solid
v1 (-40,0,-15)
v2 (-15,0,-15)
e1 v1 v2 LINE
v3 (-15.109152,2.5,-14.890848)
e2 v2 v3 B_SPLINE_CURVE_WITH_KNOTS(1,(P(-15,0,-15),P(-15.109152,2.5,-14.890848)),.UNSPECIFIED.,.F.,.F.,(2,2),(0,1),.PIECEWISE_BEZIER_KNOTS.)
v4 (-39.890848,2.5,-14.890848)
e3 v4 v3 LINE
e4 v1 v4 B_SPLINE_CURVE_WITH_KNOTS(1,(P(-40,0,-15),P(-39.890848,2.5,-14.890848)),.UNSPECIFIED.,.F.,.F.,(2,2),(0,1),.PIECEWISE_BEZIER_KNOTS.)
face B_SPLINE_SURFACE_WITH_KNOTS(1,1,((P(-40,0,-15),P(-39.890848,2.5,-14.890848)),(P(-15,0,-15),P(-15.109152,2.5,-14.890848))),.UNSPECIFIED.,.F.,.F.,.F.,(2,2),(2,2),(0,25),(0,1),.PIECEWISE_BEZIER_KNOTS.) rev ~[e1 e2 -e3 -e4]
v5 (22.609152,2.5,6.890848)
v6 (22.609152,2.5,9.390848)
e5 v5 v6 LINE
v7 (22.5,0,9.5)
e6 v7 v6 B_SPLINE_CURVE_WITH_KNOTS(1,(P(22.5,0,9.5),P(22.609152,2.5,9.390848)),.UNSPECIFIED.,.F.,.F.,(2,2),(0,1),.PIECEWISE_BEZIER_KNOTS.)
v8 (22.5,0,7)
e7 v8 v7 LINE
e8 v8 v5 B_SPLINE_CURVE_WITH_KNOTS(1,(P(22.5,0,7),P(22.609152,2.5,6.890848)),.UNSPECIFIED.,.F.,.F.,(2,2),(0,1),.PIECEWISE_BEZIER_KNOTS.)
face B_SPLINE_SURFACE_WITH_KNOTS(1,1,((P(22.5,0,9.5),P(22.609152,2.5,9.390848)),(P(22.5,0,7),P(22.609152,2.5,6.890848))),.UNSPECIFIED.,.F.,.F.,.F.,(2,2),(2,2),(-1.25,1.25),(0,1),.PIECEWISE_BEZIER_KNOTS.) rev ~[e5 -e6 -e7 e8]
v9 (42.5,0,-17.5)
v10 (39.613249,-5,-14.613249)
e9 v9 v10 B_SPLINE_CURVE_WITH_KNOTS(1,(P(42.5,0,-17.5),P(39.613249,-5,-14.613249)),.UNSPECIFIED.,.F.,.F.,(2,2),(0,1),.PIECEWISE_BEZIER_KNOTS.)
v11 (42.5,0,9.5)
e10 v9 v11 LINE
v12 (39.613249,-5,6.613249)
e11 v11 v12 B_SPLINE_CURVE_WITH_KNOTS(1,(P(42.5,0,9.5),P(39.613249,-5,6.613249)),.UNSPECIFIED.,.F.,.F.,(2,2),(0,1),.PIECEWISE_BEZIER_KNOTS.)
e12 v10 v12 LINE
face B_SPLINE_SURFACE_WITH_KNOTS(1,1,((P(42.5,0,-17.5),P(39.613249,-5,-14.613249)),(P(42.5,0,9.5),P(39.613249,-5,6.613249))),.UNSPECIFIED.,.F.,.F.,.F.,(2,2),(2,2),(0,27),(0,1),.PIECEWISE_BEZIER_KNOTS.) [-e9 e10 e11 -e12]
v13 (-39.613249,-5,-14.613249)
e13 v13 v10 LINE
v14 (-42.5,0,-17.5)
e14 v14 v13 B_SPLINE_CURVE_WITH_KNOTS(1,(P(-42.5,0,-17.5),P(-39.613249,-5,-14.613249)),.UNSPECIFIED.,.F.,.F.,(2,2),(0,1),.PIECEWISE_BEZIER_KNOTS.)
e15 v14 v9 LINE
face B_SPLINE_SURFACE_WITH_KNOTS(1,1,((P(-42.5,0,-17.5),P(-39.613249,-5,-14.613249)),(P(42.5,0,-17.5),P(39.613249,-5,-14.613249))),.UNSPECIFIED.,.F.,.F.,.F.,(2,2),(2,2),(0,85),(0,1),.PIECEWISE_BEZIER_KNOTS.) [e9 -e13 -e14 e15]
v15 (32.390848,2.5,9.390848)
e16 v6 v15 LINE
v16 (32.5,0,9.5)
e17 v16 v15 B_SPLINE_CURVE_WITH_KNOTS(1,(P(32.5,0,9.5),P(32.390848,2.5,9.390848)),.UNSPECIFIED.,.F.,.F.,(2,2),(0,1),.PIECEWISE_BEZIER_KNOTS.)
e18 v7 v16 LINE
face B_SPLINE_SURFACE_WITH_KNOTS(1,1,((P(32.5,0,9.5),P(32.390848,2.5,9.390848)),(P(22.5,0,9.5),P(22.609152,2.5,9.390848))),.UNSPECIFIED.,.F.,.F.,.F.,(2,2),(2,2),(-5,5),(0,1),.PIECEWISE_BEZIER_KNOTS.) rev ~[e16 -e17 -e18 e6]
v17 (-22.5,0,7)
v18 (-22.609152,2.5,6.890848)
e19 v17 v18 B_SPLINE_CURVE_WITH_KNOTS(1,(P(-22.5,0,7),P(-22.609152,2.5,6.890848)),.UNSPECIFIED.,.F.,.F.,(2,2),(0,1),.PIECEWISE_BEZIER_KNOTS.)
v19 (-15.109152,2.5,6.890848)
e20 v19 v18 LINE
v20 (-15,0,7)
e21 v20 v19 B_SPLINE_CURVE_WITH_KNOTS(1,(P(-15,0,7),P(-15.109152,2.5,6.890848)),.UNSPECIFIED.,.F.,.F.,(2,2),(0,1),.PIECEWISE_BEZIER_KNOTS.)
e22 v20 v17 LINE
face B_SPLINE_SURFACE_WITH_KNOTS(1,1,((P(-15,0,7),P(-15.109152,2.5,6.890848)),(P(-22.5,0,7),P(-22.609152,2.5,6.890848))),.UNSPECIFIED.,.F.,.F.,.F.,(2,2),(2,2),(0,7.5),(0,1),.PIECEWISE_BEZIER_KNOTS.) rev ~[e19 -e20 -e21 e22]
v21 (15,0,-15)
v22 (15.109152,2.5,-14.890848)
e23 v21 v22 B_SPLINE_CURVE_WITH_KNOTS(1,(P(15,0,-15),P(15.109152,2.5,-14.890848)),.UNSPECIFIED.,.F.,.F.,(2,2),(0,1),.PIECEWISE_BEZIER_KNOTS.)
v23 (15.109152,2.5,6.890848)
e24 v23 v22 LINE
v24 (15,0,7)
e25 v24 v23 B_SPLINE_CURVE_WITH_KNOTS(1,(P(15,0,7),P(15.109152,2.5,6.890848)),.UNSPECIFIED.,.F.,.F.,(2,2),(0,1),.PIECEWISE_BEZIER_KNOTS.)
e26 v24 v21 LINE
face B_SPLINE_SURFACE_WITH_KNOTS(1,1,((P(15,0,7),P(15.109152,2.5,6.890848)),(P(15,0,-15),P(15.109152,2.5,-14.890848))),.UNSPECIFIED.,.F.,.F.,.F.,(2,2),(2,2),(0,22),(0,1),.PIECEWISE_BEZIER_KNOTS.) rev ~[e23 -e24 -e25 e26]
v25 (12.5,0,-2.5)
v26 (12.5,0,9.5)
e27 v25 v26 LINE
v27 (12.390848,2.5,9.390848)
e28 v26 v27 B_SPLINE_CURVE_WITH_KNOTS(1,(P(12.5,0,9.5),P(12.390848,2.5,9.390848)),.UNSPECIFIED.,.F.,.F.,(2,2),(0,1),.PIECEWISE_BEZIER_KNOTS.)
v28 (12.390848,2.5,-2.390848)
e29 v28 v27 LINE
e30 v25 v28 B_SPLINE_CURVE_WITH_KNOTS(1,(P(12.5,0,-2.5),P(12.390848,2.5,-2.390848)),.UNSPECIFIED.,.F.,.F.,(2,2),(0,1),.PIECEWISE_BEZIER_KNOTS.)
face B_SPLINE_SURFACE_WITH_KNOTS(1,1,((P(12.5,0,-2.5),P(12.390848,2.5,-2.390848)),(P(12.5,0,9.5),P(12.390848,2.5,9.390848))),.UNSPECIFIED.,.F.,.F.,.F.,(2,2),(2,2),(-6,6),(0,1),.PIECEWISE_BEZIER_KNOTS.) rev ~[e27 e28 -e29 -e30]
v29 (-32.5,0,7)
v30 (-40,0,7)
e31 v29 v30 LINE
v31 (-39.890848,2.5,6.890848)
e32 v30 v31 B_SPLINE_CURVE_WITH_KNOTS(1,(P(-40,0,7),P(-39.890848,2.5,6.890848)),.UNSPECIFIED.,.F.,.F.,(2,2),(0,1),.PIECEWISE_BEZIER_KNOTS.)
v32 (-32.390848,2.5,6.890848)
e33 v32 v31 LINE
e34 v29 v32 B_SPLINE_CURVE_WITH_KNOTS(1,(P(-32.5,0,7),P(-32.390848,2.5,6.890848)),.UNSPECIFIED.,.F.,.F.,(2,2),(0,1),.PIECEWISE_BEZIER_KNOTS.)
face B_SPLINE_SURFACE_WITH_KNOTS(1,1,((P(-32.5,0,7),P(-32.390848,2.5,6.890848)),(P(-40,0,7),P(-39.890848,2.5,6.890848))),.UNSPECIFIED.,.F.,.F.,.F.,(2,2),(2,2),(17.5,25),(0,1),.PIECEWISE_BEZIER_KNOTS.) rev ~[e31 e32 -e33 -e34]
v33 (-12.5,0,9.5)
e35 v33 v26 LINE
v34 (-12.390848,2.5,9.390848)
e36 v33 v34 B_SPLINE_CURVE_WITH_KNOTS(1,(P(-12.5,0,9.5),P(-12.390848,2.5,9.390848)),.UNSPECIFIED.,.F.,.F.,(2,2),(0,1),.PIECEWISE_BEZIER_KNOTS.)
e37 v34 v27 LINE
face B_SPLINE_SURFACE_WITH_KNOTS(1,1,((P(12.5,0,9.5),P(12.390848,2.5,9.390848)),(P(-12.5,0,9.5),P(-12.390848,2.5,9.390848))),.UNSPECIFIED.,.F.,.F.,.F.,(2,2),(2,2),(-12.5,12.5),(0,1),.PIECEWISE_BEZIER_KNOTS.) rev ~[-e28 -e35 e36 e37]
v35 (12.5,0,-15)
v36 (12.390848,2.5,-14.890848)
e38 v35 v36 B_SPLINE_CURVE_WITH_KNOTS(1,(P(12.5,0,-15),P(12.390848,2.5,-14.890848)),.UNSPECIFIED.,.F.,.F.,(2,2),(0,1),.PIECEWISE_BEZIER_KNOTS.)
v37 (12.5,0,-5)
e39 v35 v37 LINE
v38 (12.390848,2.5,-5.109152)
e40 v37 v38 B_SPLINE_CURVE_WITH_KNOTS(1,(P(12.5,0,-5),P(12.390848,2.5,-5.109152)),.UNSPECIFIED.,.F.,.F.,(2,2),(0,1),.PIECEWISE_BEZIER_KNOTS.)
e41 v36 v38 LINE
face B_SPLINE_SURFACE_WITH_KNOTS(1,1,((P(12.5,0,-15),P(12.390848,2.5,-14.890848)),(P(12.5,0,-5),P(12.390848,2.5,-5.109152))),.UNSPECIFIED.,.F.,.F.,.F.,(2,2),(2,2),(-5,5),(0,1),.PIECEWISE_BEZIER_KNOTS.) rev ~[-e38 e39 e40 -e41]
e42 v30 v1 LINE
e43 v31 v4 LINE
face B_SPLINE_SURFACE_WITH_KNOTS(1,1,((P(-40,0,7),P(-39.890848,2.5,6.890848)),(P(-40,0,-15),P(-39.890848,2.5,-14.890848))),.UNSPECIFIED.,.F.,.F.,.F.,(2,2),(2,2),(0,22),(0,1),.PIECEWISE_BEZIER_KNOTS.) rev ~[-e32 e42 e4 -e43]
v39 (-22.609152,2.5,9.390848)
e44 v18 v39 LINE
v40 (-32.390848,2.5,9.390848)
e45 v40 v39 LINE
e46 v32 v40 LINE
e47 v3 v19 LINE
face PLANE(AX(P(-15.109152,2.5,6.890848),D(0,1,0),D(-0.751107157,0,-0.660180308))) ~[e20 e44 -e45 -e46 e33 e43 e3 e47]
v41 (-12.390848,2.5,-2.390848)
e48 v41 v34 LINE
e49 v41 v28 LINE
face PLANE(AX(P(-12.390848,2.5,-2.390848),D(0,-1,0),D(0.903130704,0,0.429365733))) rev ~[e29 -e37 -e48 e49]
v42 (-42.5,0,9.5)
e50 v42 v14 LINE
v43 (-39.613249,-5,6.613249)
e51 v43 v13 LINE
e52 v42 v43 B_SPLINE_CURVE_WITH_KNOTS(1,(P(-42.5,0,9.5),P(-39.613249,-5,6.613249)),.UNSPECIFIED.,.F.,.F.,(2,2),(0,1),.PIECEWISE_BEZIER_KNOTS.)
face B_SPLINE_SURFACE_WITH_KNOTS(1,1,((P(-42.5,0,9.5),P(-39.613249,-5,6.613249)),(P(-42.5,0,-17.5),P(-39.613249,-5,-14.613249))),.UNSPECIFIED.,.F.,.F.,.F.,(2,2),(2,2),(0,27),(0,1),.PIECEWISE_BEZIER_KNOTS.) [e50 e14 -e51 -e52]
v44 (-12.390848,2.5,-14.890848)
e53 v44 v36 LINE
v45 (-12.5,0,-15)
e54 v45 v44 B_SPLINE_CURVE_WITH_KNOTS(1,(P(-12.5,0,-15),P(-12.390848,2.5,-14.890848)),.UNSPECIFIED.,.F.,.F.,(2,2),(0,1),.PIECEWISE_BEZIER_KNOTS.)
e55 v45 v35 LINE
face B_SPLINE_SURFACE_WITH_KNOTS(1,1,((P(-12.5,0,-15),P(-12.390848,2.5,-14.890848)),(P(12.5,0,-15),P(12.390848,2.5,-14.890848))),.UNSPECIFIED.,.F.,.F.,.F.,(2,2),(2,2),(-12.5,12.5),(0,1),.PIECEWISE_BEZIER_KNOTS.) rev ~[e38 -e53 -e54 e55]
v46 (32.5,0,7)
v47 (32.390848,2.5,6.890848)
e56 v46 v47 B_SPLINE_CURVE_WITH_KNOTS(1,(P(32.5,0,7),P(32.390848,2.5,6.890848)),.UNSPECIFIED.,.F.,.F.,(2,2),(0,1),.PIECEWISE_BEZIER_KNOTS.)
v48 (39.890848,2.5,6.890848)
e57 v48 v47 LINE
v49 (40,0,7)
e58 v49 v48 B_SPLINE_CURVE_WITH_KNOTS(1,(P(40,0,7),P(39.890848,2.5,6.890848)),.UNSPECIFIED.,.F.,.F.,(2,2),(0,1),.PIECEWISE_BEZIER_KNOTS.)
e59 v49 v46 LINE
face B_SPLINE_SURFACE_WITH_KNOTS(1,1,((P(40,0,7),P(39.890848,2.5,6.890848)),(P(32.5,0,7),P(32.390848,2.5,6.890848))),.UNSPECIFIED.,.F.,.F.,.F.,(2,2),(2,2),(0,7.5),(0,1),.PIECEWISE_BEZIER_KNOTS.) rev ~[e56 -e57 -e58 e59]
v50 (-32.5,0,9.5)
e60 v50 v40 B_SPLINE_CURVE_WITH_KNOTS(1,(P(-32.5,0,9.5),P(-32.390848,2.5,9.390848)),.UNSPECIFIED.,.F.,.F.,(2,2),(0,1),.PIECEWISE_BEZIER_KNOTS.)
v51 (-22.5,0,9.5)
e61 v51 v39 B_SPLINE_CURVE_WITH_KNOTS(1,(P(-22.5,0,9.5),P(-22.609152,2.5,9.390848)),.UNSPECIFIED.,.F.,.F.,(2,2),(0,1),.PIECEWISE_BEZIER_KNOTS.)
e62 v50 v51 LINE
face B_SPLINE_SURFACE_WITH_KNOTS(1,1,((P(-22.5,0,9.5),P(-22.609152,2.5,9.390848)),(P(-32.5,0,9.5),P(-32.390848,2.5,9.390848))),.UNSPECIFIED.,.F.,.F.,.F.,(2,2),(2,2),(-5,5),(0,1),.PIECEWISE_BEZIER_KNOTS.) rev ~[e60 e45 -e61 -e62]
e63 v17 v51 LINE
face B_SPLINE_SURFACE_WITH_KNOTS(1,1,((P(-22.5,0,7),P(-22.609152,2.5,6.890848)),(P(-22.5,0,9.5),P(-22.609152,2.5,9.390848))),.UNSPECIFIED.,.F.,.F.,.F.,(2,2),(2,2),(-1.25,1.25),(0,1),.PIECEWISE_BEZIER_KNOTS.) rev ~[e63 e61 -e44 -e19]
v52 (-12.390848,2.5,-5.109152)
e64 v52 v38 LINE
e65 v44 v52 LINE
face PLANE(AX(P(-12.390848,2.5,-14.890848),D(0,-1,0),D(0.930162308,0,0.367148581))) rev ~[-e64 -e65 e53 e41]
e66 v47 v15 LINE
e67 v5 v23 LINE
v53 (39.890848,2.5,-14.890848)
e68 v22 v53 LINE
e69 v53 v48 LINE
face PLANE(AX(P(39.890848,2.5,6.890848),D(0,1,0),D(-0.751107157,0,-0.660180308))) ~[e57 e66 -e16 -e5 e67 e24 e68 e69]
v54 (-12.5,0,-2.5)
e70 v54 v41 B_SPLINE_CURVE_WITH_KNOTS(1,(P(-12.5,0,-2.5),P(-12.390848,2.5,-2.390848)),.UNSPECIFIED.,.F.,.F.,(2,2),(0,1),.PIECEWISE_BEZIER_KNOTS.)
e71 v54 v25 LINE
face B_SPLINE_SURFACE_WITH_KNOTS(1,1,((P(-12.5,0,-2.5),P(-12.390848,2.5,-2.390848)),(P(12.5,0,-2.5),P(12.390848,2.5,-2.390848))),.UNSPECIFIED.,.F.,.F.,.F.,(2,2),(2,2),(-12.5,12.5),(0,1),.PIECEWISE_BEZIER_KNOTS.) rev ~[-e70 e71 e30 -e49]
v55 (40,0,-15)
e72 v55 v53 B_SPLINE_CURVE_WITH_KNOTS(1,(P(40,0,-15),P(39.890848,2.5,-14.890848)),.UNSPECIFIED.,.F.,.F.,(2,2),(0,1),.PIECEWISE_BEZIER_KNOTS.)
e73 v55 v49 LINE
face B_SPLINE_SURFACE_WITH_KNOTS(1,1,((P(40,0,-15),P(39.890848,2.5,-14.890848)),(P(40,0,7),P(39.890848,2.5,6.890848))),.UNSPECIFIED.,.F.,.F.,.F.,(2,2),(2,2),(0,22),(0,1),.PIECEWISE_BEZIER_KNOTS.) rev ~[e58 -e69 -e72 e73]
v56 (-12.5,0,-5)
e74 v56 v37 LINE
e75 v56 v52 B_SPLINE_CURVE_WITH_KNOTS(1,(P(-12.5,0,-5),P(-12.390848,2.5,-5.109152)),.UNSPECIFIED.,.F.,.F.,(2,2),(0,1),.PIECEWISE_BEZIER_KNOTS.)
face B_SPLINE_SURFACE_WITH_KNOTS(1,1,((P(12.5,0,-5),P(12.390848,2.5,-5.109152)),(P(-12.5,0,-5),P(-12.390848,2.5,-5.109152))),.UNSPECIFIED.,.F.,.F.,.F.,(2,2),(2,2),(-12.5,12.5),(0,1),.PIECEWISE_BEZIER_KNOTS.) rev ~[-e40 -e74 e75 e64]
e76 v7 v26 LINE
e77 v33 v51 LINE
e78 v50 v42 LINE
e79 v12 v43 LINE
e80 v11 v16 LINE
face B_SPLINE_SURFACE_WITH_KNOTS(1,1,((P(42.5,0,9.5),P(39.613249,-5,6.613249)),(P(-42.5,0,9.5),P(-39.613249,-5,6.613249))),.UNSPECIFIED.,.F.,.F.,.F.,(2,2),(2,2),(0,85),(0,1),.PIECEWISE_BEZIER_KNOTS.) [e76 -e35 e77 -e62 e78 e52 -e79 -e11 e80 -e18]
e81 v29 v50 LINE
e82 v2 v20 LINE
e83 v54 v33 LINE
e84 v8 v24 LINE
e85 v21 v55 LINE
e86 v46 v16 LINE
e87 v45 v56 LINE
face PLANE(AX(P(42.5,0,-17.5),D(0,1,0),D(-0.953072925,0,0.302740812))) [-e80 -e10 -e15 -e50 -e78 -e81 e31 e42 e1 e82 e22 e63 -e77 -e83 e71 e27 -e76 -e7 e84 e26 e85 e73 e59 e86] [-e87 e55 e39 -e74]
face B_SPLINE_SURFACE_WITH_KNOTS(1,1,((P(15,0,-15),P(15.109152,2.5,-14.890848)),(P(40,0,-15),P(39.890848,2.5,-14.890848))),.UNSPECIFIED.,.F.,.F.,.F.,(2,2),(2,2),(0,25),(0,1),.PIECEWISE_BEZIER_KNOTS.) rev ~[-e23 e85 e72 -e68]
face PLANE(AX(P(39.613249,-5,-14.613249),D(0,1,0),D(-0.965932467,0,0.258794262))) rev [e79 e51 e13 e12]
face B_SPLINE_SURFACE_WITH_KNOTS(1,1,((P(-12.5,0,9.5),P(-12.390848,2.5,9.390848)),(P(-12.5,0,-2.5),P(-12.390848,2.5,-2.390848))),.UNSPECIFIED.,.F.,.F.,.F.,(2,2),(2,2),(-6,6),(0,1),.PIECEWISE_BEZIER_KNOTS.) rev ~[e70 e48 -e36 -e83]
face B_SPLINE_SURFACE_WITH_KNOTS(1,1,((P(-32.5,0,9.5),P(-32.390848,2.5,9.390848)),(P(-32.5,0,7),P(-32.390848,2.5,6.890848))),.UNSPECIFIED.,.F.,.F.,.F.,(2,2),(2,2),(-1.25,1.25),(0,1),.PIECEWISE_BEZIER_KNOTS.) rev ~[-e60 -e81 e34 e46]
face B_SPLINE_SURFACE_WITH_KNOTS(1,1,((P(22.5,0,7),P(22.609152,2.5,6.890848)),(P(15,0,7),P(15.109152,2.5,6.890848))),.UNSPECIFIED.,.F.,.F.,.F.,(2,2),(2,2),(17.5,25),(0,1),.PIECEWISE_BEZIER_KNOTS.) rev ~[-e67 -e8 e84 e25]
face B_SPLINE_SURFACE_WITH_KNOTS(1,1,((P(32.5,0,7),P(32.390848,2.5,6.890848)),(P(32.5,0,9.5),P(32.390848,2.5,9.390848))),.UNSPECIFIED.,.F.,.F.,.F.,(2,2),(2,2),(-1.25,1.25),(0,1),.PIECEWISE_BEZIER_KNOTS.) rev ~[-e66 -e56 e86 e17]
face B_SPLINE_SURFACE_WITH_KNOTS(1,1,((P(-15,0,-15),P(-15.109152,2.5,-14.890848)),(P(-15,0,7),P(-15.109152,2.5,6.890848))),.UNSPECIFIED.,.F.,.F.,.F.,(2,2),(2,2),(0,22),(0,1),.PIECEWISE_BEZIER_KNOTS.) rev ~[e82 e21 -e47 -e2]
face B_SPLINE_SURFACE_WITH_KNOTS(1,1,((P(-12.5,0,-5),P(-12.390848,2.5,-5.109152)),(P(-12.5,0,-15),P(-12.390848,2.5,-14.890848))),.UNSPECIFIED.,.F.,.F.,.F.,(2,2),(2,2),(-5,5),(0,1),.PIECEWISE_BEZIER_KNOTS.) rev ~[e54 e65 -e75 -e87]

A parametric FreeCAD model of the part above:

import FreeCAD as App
import Part
import Sketcher

V = App.Vector
Q = App.Units.Quantity

doc = App.newDocument("Part")
body = doc.addObject("PartDesign::Body", "Body")

sketch1 = body.newObject("Sketcher::SketchObject", "Sketch")
sketch1.AttachmentSupport = (doc.getObject("XZ_Plane"), [""])
sketch1.MapMode = "FlatFace"
sketch1.addGeometry([
    Part.LineSegment(V(42, -18, 0), V(42, 10, 0)),
    Part.LineSegment(V(42, 10, 0), V(-42, 10, 0)),
    Part.LineSegment(V(-42, 10, 0), V(-42, -18, 0)),
    Part.LineSegment(V(-42, -18, 0), V(42, -18, 0)),
], False)
sketch1.addConstraint([
    Sketcher.Constraint("Coincident", 0, 2, 1, 1),
    Sketcher.Constraint("Coincident", 1, 2, 2, 1),
    Sketcher.Constraint("Coincident", 2, 2, 3, 1),
    Sketcher.Constraint("Coincident", 3, 2, 0, 1),
    Sketcher.Constraint("Vertical", 0),
    Sketcher.Constraint("Horizontal", 1),
    Sketcher.Constraint("Vertical", 2),
    Sketcher.Constraint("Horizontal", 3),
    Sketcher.Constraint("DistanceX", 1, 2, 1, 1, Q("85 mm")),
    Sketcher.Constraint("DistanceY", 0, 1, 0, 2, Q("27 mm")),
    Sketcher.Constraint("DistanceX", -1, 1, 0, 2, Q("42.5 mm")),
    Sketcher.Constraint("DistanceY", -1, 1, 0, 2, Q("9.5 mm")),
])
pad1 = body.newObject("PartDesign::Pad", "Pad")
pad1.Profile = sketch1
pad1.Length = 5
pad1.TaperAngle = -30

sketch2 = body.newObject("Sketcher::SketchObject", "Sketch001")
sketch2.AttachmentSupport = (doc.getObject("XZ_Plane"), [""])
sketch2.MapMode = "FlatFace"
sketch2.addGeometry([
    Part.LineSegment(V(40, 7, 0), V(32.5, 7, 0)),
    Part.LineSegment(V(32.5, 7, 0), V(32.5, 9.5, 0)),
    Part.LineSegment(V(32.5, 9.5, 0), V(22.5, 9.5, 0)),
    Part.LineSegment(V(22.5, 9.5, 0), V(22.5, 7, 0)),
    Part.LineSegment(V(22.5, 7, 0), V(15, 7, 0)),
    Part.LineSegment(V(15, 7, 0), V(15, -15, 0)),
    Part.LineSegment(V(15, -15, 0), V(40, -15, 0)),
    Part.LineSegment(V(40, -15, 0), V(40, 7, 0)),
    Part.LineSegment(V(-15, 7, 0), V(-22.5, 7, 0)),
    Part.LineSegment(V(-22.5, 7, 0), V(-22.5, 9.5, 0)),
    Part.LineSegment(V(-22.5, 9.5, 0), V(-32.5, 9.5, 0)),
    Part.LineSegment(V(-32.5, 9.5, 0), V(-32.5, 7, 0)),
    Part.LineSegment(V(-32.5, 7, 0), V(-40, 7, 0)),
    Part.LineSegment(V(-40, 7, 0), V(-40, -15, 0)),
    Part.LineSegment(V(-40, -15, 0), V(-15, -15, 0)),
    Part.LineSegment(V(-15, -15, 0), V(-15, 7, 0)),
    Part.LineSegment(V(-12.5, -5, 0), V(-12.5, -15, 0)),
    Part.LineSegment(V(-12.5, -15, 0), V(12.5, -15, 0)),
    Part.LineSegment(V(12.5, -15, 0), V(12.5, -5, 0)),
    Part.LineSegment(V(12.5, -5, 0), V(-12.5, -5, 0)),
    Part.LineSegment(V(-12.5, 9.5, 0), V(-12.5, -2.5, 0)),
    Part.LineSegment(V(-12.5, -2.5, 0), V(12.5, -2.5, 0)),
    Part.LineSegment(V(12.5, -2.5, 0), V(12.5, 9.5, 0)),
    Part.LineSegment(V(12.5, 9.5, 0), V(-12.5, 9.5, 0)),
], False)
sketch2.addConstraint([
    Sketcher.Constraint("Coincident", 0, 2, 1, 1),
    Sketcher.Constraint("Coincident", 1, 2, 2, 1),
    Sketcher.Constraint("Coincident", 2, 2, 3, 1),
    Sketcher.Constraint("Coincident", 3, 2, 4, 1),
    Sketcher.Constraint("Coincident", 4, 2, 5, 1),
    Sketcher.Constraint("Coincident", 5, 2, 6, 1),
    Sketcher.Constraint("Coincident", 6, 2, 7, 1),
    Sketcher.Constraint("Coincident", 7, 2, 0, 1),
    Sketcher.Constraint("Coincident", 8, 2, 9, 1),
    Sketcher.Constraint("Coincident", 9, 2, 10, 1),
    Sketcher.Constraint("Coincident", 10, 2, 11, 1),
    Sketcher.Constraint("Coincident", 11, 2, 12, 1),
    Sketcher.Constraint("Coincident", 12, 2, 13, 1),
    Sketcher.Constraint("Coincident", 13, 2, 14, 1),
    Sketcher.Constraint("Coincident", 14, 2, 15, 1),
    Sketcher.Constraint("Coincident", 15, 2, 8, 1),
    Sketcher.Constraint("Coincident", 16, 2, 17, 1),
    Sketcher.Constraint("Coincident", 17, 2, 18, 1),
    Sketcher.Constraint("Coincident", 18, 2, 19, 1),
    Sketcher.Constraint("Coincident", 19, 2, 16, 1),
    Sketcher.Constraint("Coincident", 20, 2, 21, 1),
    Sketcher.Constraint("Coincident", 21, 2, 22, 1),
    Sketcher.Constraint("Coincident", 22, 2, 23, 1),
    Sketcher.Constraint("Coincident", 23, 2, 20, 1),
    Sketcher.Constraint("Horizontal", 0),
    Sketcher.Constraint("Vertical", 1),
    Sketcher.Constraint("Horizontal", 2),
    Sketcher.Constraint("Vertical", 3),
    Sketcher.Constraint("Horizontal", 4),
    Sketcher.Constraint("Vertical", 5),
    Sketcher.Constraint("Horizontal", 6),
    Sketcher.Constraint("Vertical", 7),
    Sketcher.Constraint("Horizontal", 8),
    Sketcher.Constraint("Vertical", 9),
    Sketcher.Constraint("Horizontal", 10),
    Sketcher.Constraint("Vertical", 11),
    Sketcher.Constraint("Horizontal", 12),
    Sketcher.Constraint("Vertical", 13),
    Sketcher.Constraint("Horizontal", 14),
    Sketcher.Constraint("Vertical", 15),
    Sketcher.Constraint("Vertical", 16),
    Sketcher.Constraint("Horizontal", 17),
    Sketcher.Constraint("Vertical", 18),
    Sketcher.Constraint("Horizontal", 19),
    Sketcher.Constraint("Vertical", 20),
    Sketcher.Constraint("Horizontal", 21),
    Sketcher.Constraint("Vertical", 22),
    Sketcher.Constraint("Horizontal", 23),
    Sketcher.Constraint("Symmetric", 3, 2, 8, 2, -2),
    Sketcher.Constraint("Symmetric", 1, 2, 10, 2, -2),
    Sketcher.Constraint("Symmetric", 7, 2, 12, 2, -2),
    Sketcher.Constraint("Symmetric", 5, 2, 14, 2, -2),
    Sketcher.Constraint("Horizontal", 0, 2, 3, 2),
    Sketcher.Constraint("Horizontal", 14, 2, 16, 2),
    Sketcher.Constraint("Horizontal", 10, 2, 22, 2),
    Sketcher.Constraint("Vertical", 19, 2, 20, 2),
    Sketcher.Constraint("Vertical", 18, 2, 21, 2),
    Sketcher.Constraint("Equal", 0, 4),
    Sketcher.Constraint("Equal", 14, 17),
    Sketcher.Constraint("Equal", 10, 16),
    Sketcher.Constraint("DistanceX", 2, 2, 2, 1, Q("10 mm")),
    Sketcher.Constraint("DistanceX", 6, 1, 6, 2, Q("25 mm")),
    Sketcher.Constraint("DistanceY", 5, 2, 5, 1, Q("22 mm")),
    Sketcher.Constraint("DistanceY", 20, 2, 20, 1, Q("12 mm")),
    Sketcher.Constraint("DistanceY", 1, 1, 1, 2, Q("2.5 mm")),
    Sketcher.Constraint("DistanceY", -1, 1, 0, 2, Q("7 mm")),
    Sketcher.Constraint("DistanceX", -1, 1, 4, 2, Q("15 mm")),
    Sketcher.Constraint("DistanceX", 8, 2, 16, 2, Q("10 mm")),
])
pad2 = body.newObject("PartDesign::Pad", "Pad001")
pad2.Profile = sketch2
pad2.Length = 2.5
pad2.Reversed = True
pad2.TaperAngle = -2.5

doc.recompute()
